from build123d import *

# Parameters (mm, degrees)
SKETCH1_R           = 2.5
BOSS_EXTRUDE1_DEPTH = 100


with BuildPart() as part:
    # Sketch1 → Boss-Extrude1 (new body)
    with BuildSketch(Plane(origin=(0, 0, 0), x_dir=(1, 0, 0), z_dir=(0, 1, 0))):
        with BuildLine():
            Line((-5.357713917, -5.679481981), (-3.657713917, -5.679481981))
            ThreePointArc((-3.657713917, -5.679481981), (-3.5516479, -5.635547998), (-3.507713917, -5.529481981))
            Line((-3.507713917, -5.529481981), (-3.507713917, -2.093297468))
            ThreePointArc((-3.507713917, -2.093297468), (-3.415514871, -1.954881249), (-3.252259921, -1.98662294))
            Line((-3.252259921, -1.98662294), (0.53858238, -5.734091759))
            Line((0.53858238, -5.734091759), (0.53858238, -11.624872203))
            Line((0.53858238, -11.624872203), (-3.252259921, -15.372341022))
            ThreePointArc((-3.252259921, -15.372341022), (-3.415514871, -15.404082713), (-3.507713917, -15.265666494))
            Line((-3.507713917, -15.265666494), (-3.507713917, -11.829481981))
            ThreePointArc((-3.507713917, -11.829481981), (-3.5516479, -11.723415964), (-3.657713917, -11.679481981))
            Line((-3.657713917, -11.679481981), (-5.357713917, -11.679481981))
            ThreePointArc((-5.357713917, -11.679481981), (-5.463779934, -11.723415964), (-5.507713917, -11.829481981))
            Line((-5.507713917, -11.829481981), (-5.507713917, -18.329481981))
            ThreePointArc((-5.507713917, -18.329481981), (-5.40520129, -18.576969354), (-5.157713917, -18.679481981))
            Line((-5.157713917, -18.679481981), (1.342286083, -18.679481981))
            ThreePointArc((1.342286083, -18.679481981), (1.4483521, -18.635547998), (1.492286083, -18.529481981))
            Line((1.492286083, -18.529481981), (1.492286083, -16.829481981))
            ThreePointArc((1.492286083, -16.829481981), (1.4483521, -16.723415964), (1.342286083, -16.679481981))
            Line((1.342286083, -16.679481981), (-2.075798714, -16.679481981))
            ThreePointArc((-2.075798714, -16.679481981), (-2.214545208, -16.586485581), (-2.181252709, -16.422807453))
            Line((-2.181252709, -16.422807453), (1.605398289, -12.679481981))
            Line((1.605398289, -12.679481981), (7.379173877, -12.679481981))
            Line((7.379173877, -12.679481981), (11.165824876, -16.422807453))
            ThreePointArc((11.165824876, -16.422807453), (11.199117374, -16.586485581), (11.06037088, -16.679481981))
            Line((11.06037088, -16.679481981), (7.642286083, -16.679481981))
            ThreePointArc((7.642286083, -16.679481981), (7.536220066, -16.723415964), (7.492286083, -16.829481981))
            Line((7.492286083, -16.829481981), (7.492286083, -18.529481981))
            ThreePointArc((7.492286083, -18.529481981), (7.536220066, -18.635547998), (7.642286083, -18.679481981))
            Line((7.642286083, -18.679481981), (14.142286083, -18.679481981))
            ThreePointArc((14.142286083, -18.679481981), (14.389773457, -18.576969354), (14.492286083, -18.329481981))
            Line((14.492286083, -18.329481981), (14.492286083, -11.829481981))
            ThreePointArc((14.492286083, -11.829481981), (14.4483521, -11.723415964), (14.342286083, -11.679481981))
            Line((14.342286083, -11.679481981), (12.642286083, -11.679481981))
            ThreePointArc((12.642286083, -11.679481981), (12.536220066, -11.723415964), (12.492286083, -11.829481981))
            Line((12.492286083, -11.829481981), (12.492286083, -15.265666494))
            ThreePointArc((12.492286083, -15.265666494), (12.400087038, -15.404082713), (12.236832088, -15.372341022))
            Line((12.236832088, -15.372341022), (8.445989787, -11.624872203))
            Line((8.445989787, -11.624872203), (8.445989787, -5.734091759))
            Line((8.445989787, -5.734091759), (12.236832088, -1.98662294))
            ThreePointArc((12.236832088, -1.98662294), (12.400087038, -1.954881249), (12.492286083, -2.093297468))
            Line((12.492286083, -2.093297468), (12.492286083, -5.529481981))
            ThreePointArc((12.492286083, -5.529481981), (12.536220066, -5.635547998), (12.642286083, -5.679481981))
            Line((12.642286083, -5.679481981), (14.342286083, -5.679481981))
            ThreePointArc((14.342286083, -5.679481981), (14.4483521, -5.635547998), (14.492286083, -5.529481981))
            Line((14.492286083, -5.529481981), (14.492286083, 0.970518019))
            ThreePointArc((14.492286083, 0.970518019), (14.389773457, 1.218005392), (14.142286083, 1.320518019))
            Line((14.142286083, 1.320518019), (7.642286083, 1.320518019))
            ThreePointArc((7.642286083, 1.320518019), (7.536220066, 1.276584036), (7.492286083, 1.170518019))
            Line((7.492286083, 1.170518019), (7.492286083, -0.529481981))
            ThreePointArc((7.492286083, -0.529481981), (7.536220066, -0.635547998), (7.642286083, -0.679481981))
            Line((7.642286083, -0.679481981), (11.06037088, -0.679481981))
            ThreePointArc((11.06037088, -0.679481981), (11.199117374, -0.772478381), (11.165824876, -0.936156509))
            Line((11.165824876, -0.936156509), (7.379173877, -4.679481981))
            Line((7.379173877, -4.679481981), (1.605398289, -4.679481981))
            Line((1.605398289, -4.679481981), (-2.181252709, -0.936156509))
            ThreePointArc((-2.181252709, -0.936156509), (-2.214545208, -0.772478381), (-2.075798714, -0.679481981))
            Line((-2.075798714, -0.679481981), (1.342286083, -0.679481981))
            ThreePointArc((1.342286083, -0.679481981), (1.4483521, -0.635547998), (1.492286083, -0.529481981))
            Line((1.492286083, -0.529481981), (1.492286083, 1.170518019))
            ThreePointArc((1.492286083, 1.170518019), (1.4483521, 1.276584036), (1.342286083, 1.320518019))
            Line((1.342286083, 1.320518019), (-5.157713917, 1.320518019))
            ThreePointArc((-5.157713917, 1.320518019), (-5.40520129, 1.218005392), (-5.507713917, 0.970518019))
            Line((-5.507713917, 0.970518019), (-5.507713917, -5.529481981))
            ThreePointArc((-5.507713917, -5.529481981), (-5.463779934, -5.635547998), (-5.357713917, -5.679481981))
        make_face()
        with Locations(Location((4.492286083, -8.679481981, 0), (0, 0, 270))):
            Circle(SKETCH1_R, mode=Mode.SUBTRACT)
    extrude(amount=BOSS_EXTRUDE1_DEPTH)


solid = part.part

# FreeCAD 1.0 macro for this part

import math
import FreeCAD as App
import Part
import Sketcher

V = App.Vector
Q = App.Units.Quantity

doc = App.newDocument("Part")
body = doc.addObject("PartDesign::Body", "Body")

# Sketch on XZ plane
sketch1 = doc.addObject("Sketcher::SketchObject", "Sketch")
body.addObject(sketch1)
sketch1.AttachmentSupport = (doc.XZ_Plane, [""])
sketch1.MapMode = "FlatFace"
sketch1.addGeometry([
    Part.LineSegment(V(-5.36, 5.68, 0), V(-3.66, 5.68, 0)),  # 0
    Part.ArcOfCircle(Part.Circle(V(-3.66, 5.53, 0), V(0, 0, 1), 0.15), math.radians(0), math.radians(90)),  # 1
    Part.LineSegment(V(-3.51, 5.53, 0), V(-3.51, 2.09, 0)),  # 2
    Part.ArcOfCircle(Part.Circle(V(-3.36, 2.09, 0), V(0, 0, 1), 0.15), math.radians(-180), math.radians(-45)),  # 3
    Part.LineSegment(V(-3.25, 1.99, 0), V(0.54, 5.73, 0)),  # 4
    Part.LineSegment(V(0.54, 5.73, 0), V(0.54, 11.62, 0)),  # 5
    Part.LineSegment(V(0.54, 11.62, 0), V(-3.25, 15.37, 0)),  # 6
    Part.ArcOfCircle(Part.Circle(V(-3.36, 15.27, 0), V(0, 0, 1), 0.15), math.radians(45), math.radians(180)),  # 7
    Part.LineSegment(V(-3.51, 15.27, 0), V(-3.51, 11.83, 0)),  # 8
    Part.ArcOfCircle(Part.Circle(V(-3.66, 11.83, 0), V(0, 0, 1), 0.15), math.radians(-90), math.radians(0)),  # 9
    Part.LineSegment(V(-3.66, 11.68, 0), V(-5.36, 11.68, 0)),  # 10
    Part.ArcOfCircle(Part.Circle(V(-5.36, 11.83, 0), V(0, 0, 1), 0.15), math.radians(-180), math.radians(-90)),  # 11
    Part.LineSegment(V(-5.51, 11.83, 0), V(-5.51, 18.33, 0)),  # 12
    Part.ArcOfCircle(Part.Circle(V(-5.16, 18.33, 0), V(0, 0, 1), 0.35), math.radians(90), math.radians(180)),  # 13
    Part.LineSegment(V(-5.16, 18.68, 0), V(1.34, 18.68, 0)),  # 14
    Part.ArcOfCircle(Part.Circle(V(1.34, 18.53, 0), V(0, 0, 1), 0.15), math.radians(0), math.radians(90)),  # 15
    Part.LineSegment(V(1.49, 18.53, 0), V(1.49, 16.83, 0)),  # 16
    Part.ArcOfCircle(Part.Circle(V(1.34, 16.83, 0), V(0, 0, 1), 0.15), math.radians(-90), math.radians(0)),  # 17
    Part.LineSegment(V(1.34, 16.68, 0), V(-2.08, 16.68, 0)),  # 18
    Part.ArcOfCircle(Part.Circle(V(-2.08, 16.53, 0), V(0, 0, 1), 0.15), math.radians(90), math.radians(225)),  # 19
    Part.LineSegment(V(-2.18, 16.42, 0), V(1.61, 12.68, 0)),  # 20
    Part.LineSegment(V(1.61, 12.68, 0), V(7.38, 12.68, 0)),  # 21
    Part.LineSegment(V(7.38, 12.68, 0), V(11.17, 16.42, 0)),  # 22
    Part.ArcOfCircle(Part.Circle(V(11.06, 16.53, 0), V(0, 0, 1), 0.15), math.radians(-45), math.radians(90)),  # 23
    Part.LineSegment(V(11.06, 16.68, 0), V(7.64, 16.68, 0)),  # 24
    Part.ArcOfCircle(Part.Circle(V(7.64, 16.83, 0), V(0, 0, 1), 0.15), math.radians(-180), math.radians(-90)),  # 25
    Part.LineSegment(V(7.49, 16.83, 0), V(7.49, 18.53, 0)),  # 26
    Part.ArcOfCircle(Part.Circle(V(7.64, 18.53, 0), V(0, 0, 1), 0.15), math.radians(90), math.radians(180)),  # 27
    Part.LineSegment(V(7.64, 18.68, 0), V(14.14, 18.68, 0)),  # 28
    Part.ArcOfCircle(Part.Circle(V(14.14, 18.33, 0), V(0, 0, 1), 0.35), math.radians(0), math.radians(90)),  # 29
    Part.LineSegment(V(14.49, 18.33, 0), V(14.49, 11.83, 0)),  # 30
    Part.ArcOfCircle(Part.Circle(V(14.34, 11.83, 0), V(0, 0, 1), 0.15), math.radians(-90), math.radians(0)),  # 31
    Part.LineSegment(V(14.34, 11.68, 0), V(12.64, 11.68, 0)),  # 32
    Part.ArcOfCircle(Part.Circle(V(12.64, 11.83, 0), V(0, 0, 1), 0.15), math.radians(-180), math.radians(-90)),  # 33
    Part.LineSegment(V(12.49, 11.83, 0), V(12.49, 15.27, 0)),  # 34
    Part.ArcOfCircle(Part.Circle(V(12.34, 15.27, 0), V(0, 0, 1), 0.15), math.radians(0), math.radians(135)),  # 35
    Part.LineSegment(V(12.24, 15.37, 0), V(8.45, 11.62, 0)),  # 36
    Part.LineSegment(V(8.45, 11.62, 0), V(8.45, 5.73, 0)),  # 37
    Part.LineSegment(V(8.45, 5.73, 0), V(12.24, 1.99, 0)),  # 38
    Part.ArcOfCircle(Part.Circle(V(12.34, 2.09, 0), V(0, 0, 1), 0.15), math.radians(-135), math.radians(0)),  # 39
    Part.LineSegment(V(12.49, 2.09, 0), V(12.49, 5.53, 0)),  # 40
    Part.ArcOfCircle(Part.Circle(V(12.64, 5.53, 0), V(0, 0, 1), 0.15), math.radians(90), math.radians(180)),  # 41
    Part.LineSegment(V(12.64, 5.68, 0), V(14.34, 5.68, 0)),  # 42
    Part.ArcOfCircle(Part.Circle(V(14.34, 5.53, 0), V(0, 0, 1), 0.15), math.radians(0), math.radians(90)),  # 43
    Part.LineSegment(V(14.49, 5.53, 0), V(14.49, -0.97, 0)),  # 44
    Part.ArcOfCircle(Part.Circle(V(14.14, -0.97, 0), V(0, 0, 1), 0.35), math.radians(-90), math.radians(0)),  # 45
    Part.LineSegment(V(14.14, -1.32, 0), V(7.64, -1.32, 0)),  # 46
    Part.ArcOfCircle(Part.Circle(V(7.64, -1.17, 0), V(0, 0, 1), 0.15), math.radians(-180), math.radians(-90)),  # 47
    Part.LineSegment(V(7.49, -1.17, 0), V(7.49, 0.53, 0)),  # 48
    Part.ArcOfCircle(Part.Circle(V(7.64, 0.53, 0), V(0, 0, 1), 0.15), math.radians(90), math.radians(180)),  # 49
    Part.LineSegment(V(7.64, 0.68, 0), V(11.06, 0.68, 0)),  # 50
    Part.ArcOfCircle(Part.Circle(V(11.06, 0.83, 0), V(0, 0, 1), 0.15), math.radians(-90), math.radians(45)),  # 51
    Part.LineSegment(V(11.17, 0.94, 0), V(7.38, 4.68, 0)),  # 52
    Part.LineSegment(V(7.38, 4.68, 0), V(1.61, 4.68, 0)),  # 53
    Part.LineSegment(V(1.61, 4.68, 0), V(-2.18, 0.94, 0)),  # 54
    Part.ArcOfCircle(Part.Circle(V(-2.08, 0.83, 0), V(0, 0, 1), 0.15), math.radians(135), math.radians(270)),  # 55
    Part.LineSegment(V(-2.08, 0.68, 0), V(1.34, 0.68, 0)),  # 56
    Part.ArcOfCircle(Part.Circle(V(1.34, 0.53, 0), V(0, 0, 1), 0.15), math.radians(0), math.radians(90)),  # 57
    Part.LineSegment(V(1.49, 0.53, 0), V(1.49, -1.17, 0)),  # 58
    Part.ArcOfCircle(Part.Circle(V(1.34, -1.17, 0), V(0, 0, 1), 0.15), math.radians(-90), math.radians(0)),  # 59
    Part.LineSegment(V(1.34, -1.32, 0), V(-5.16, -1.32, 0)),  # 60
    Part.ArcOfCircle(Part.Circle(V(-5.16, -0.97, 0), V(0, 0, 1), 0.35), math.radians(-180), math.radians(-90)),  # 61
    Part.LineSegment(V(-5.51, -0.97, 0), V(-5.51, 5.53, 0)),  # 62
    Part.ArcOfCircle(Part.Circle(V(-5.36, 5.53, 0), V(0, 0, 1), 0.15), math.radians(90), math.radians(180)),  # 63
    Part.Circle(V(4.49, 8.68, 0), V(0, 0, 1), 2.5),  # 64
], False)
sketch1.addConstraint([
    Sketcher.Constraint("Tangent", 0, 2, 1, 2),
    Sketcher.Constraint("Tangent", 1, 1, 2, 1),
    Sketcher.Constraint("Tangent", 2, 2, 3, 1),
    Sketcher.Constraint("Tangent", 3, 2, 4, 1),
    Sketcher.Constraint("Coincident", 4, 2, 5, 1),
    Sketcher.Constraint("Coincident", 5, 2, 6, 1),
    Sketcher.Constraint("Tangent", 6, 2, 7, 1),
    Sketcher.Constraint("Tangent", 7, 2, 8, 1),
    Sketcher.Constraint("Tangent", 8, 2, 9, 2),
    Sketcher.Constraint("Tangent", 9, 1, 10, 1),
    Sketcher.Constraint("Tangent", 10, 2, 11, 2),
    Sketcher.Constraint("Tangent", 11, 1, 12, 1),
    Sketcher.Constraint("Tangent", 12, 2, 13, 2),
    Sketcher.Constraint("Tangent", 13, 1, 14, 1),
    Sketcher.Constraint("Tangent", 14, 2, 15, 2),
    Sketcher.Constraint("Tangent", 15, 1, 16, 1),
    Sketcher.Constraint("Tangent", 16, 2, 17, 2),
    Sketcher.Constraint("Tangent", 17, 1, 18, 1),
    Sketcher.Constraint("Tangent", 18, 2, 19, 1),
    Sketcher.Constraint("Tangent", 19, 2, 20, 1),
    Sketcher.Constraint("Coincident", 20, 2, 21, 1),
    Sketcher.Constraint("Coincident", 21, 2, 22, 1),
    Sketcher.Constraint("Tangent", 22, 2, 23, 1),
    Sketcher.Constraint("Tangent", 23, 2, 24, 1),
    Sketcher.Constraint("Tangent", 24, 2, 25, 2),
    Sketcher.Constraint("Tangent", 25, 1, 26, 1),
    Sketcher.Constraint("Tangent", 26, 2, 27, 2),
    Sketcher.Constraint("Tangent", 27, 1, 28, 1),
    Sketcher.Constraint("Tangent", 28, 2, 29, 2),
    Sketcher.Constraint("Tangent", 29, 1, 30, 1),
    Sketcher.Constraint("Tangent", 30, 2, 31, 2),
    Sketcher.Constraint("Tangent", 31, 1, 32, 1),
    Sketcher.Constraint("Tangent", 32, 2, 33, 2),
    Sketcher.Constraint("Tangent", 33, 1, 34, 1),
    Sketcher.Constraint("Tangent", 34, 2, 35, 1),
    Sketcher.Constraint("Tangent", 35, 2, 36, 1),
    Sketcher.Constraint("Coincident", 36, 2, 37, 1),
    Sketcher.Constraint("Coincident", 37, 2, 38, 1),
    Sketcher.Constraint("Tangent", 38, 2, 39, 1),
    Sketcher.Constraint("Tangent", 39, 2, 40, 1),
    Sketcher.Constraint("Tangent", 40, 2, 41, 2),
    Sketcher.Constraint("Tangent", 41, 1, 42, 1),
    Sketcher.Constraint("Tangent", 42, 2, 43, 2),
    Sketcher.Constraint("Tangent", 43, 1, 44, 1),
    Sketcher.Constraint("Tangent", 44, 2, 45, 2),
    Sketcher.Constraint("Tangent", 45, 1, 46, 1),
    Sketcher.Constraint("Tangent", 46, 2, 47, 2),
    Sketcher.Constraint("Tangent", 47, 1, 48, 1),
    Sketcher.Constraint("Tangent", 48, 2, 49, 2),
    Sketcher.Constraint("Tangent", 49, 1, 50, 1),
    Sketcher.Constraint("Tangent", 50, 2, 51, 1),
    Sketcher.Constraint("Tangent", 51, 2, 52, 1),
    Sketcher.Constraint("Coincident", 52, 2, 53, 1),
    Sketcher.Constraint("Coincident", 53, 2, 54, 1),
    Sketcher.Constraint("Tangent", 54, 2, 55, 1),
    Sketcher.Constraint("Tangent", 55, 2, 56, 1),
    Sketcher.Constraint("Tangent", 56, 2, 57, 2),
    Sketcher.Constraint("Tangent", 57, 1, 58, 1),
    Sketcher.Constraint("Tangent", 58, 2, 59, 2),
    Sketcher.Constraint("Tangent", 59, 1, 60, 1),
    Sketcher.Constraint("Tangent", 60, 2, 61, 2),
    Sketcher.Constraint("Tangent", 61, 1, 62, 1),
    Sketcher.Constraint("Tangent", 62, 2, 63, 2),
    Sketcher.Constraint("Tangent", 63, 1, 0, 1),
    Sketcher.Constraint("Horizontal", 0),
    Sketcher.Constraint("Vertical", 2),
    Sketcher.Constraint("Vertical", 5),
    Sketcher.Constraint("Vertical", 8),
    Sketcher.Constraint("Horizontal", 10),
    Sketcher.Constraint("Vertical", 12),
    Sketcher.Constraint("Horizontal", 14),
    Sketcher.Constraint("Vertical", 16),
    Sketcher.Constraint("Horizontal", 18),
    Sketcher.Constraint("Horizontal", 21),
    Sketcher.Constraint("Horizontal", 24),
    Sketcher.Constraint("Vertical", 26),
    Sketcher.Constraint("Horizontal", 28),
    Sketcher.Constraint("Vertical", 30),
    Sketcher.Constraint("Horizontal", 32),
    Sketcher.Constraint("Vertical", 34),
    Sketcher.Constraint("Vertical", 37),
    Sketcher.Constraint("Vertical", 40),
    Sketcher.Constraint("Horizontal", 42),
    Sketcher.Constraint("Vertical", 44),
    Sketcher.Constraint("Horizontal", 46),
    Sketcher.Constraint("Vertical", 48),
    Sketcher.Constraint("Horizontal", 50),
    Sketcher.Constraint("Horizontal", 53),
    Sketcher.Constraint("Horizontal", 56),
    Sketcher.Constraint("Vertical", 58),
    Sketcher.Constraint("Horizontal", 60),
    Sketcher.Constraint("Vertical", 62),
    Sketcher.Constraint("Equal", 1, 3),
    Sketcher.Constraint("Equal", 3, 7),
    Sketcher.Constraint("Equal", 7, 9),
    Sketcher.Constraint("Equal", 9, 11),
    Sketcher.Constraint("Equal", 11, 15),
    Sketcher.Constraint("Equal", 15, 17),
    Sketcher.Constraint("Equal", 17, 19),
    Sketcher.Constraint("Equal", 19, 23),
    Sketcher.Constraint("Equal", 23, 25),
    Sketcher.Constraint("Equal", 25, 27),
    Sketcher.Constraint("Equal", 13, 29),
    Sketcher.Constraint("Equal", 27, 31),
    Sketcher.Constraint("Equal", 31, 33),
    Sketcher.Constraint("Equal", 33, 35),
    Sketcher.Constraint("Equal", 35, 39),
    Sketcher.Constraint("Equal", 39, 41),
    Sketcher.Constraint("Equal", 41, 43),
    Sketcher.Constraint("Equal", 29, 45),
    Sketcher.Constraint("Equal", 43, 47),
    Sketcher.Constraint("Equal", 47, 49),
    Sketcher.Constraint("Equal", 49, 51),
    Sketcher.Constraint("Equal", 51, 55),
    Sketcher.Constraint("Equal", 55, 57),
    Sketcher.Constraint("Equal", 57, 59),
    Sketcher.Constraint("Equal", 45, 61),
    Sketcher.Constraint("Equal", 59, 63),
    Sketcher.Constraint("Parallel", 6, 20),
    Sketcher.Constraint("Parallel", 4, 22),
    Sketcher.Constraint("Parallel", 22, 36),
    Sketcher.Constraint("Parallel", 20, 38),
    Sketcher.Constraint("Parallel", 38, 52),
    Sketcher.Constraint("Parallel", 36, 54),
    Sketcher.Constraint("Horizontal", 19, 3, 23, 3),
    Sketcher.Constraint("Horizontal", 15, 3, 27, 3),
    Sketcher.Constraint("Horizontal", 11, 3, 31, 3),
    Sketcher.Constraint("Horizontal", 7, 3, 35, 3),
    Sketcher.Constraint("Horizontal", 3, 3, 39, 3),
    Sketcher.Constraint("Horizontal", 1, 3, 41, 3),
    Sketcher.Constraint("Horizontal", 51, 3, 55, 3),
    Sketcher.Constraint("Horizontal", 47, 3, 59, 3),
    Sketcher.Constraint("Horizontal", 19, 2, 22, 2),
    Sketcher.Constraint("Horizontal", 5, 2, 36, 2),
    Sketcher.Constraint("Horizontal", 4, 2, 37, 2),
    Sketcher.Constraint("Vertical", 3, 3, 7, 3),
    Sketcher.Constraint("Vertical", 31, 3, 43, 3),
    Sketcher.Constraint("Vertical", 27, 3, 47, 3),
    Sketcher.Constraint("Vertical", 23, 3, 51, 3),
    Sketcher.Constraint("Vertical", 19, 3, 55, 3),
    Sketcher.Constraint("Vertical", 17, 3, 57, 3),
    Sketcher.Constraint("Vertical", 13, 3, 61, 3),
    Sketcher.Constraint("Vertical", 21, 2, 52, 2),
    Sketcher.Constraint("Equal", 18, 24),
    Sketcher.Constraint("Equal", 14, 28),
    Sketcher.Constraint("Equal", 10, 32),
    Sketcher.Constraint("Equal", 2, 8),
    Sketcher.Constraint("Equal", 60, 12),
    Sketcher.Constraint("Equal", 42, 16),
    Sketcher.Constraint("Equal", 30, 44),
    Sketcher.Constraint("Equal", 26, 48),
    Sketcher.Constraint("Diameter", 64, Q("5 mm")),
    Sketcher.Constraint("Radius", 1, Q("0.15 mm")),
    Sketcher.Constraint("Radius", 13, Q("0.35 mm")),
    Sketcher.Constraint("DistanceX", 0, 1, 0, 2, Q("1.7 mm")),
    Sketcher.Constraint("DistanceX", 14, 1, 14, 2, Q("6.5 mm")),
    Sketcher.Constraint("DistanceY", 5, 1, 5, 2, Q("5.89078 mm")),
    Sketcher.Constraint("DistanceX", 19, 3, -1, 1, Q("2.075799 mm")),
    Sketcher.Constraint("DistanceX", -1, 1, 20, 2, Q("1.605398 mm")),
    Sketcher.Constraint("Distance", 4, Q("5.330479 mm")),
    Sketcher.Constraint("DistanceX", 18, 2, 18, 1, Q("3.418085 mm")),
    Sketcher.Constraint("DistanceX", 21, 1, 21, 2, Q("5.773776 mm")),
    Sketcher.Constraint("DistanceY", 2, 2, 2, 1, Q("3.436185 mm")),
    Sketcher.Constraint("DistanceY", -1, 1, 1, 3, Q("5.529482 mm")),
    Sketcher.Constraint("DistanceY", -1, 1, 9, 3, Q("11.829482 mm")),
    Sketcher.Constraint("DistanceY", -1, 1, 64, 3, Q("8.679482 mm")),
    Sketcher.Constraint("DistanceX", -1, 1, 64, 3, Q("4.492286 mm")),
])
pad1 = doc.addObject("PartDesign::Pad", "Pad")
body.addObject(pad1)
pad1.Profile = sketch1
pad1.Length = 100
pad1.Reversed = True

doc.recompute()
